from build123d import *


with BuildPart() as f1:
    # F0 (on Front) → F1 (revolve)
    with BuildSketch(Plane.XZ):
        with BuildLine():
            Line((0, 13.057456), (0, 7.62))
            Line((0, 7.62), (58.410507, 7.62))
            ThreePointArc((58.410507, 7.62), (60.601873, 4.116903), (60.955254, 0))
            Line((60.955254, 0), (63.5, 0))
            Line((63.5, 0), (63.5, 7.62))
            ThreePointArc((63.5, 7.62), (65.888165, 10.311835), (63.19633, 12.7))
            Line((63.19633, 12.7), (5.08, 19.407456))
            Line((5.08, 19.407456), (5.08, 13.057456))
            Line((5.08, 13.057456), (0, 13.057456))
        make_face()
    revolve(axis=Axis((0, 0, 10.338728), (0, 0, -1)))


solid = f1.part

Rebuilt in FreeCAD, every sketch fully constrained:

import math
import FreeCAD as App
import Part
import Sketcher
from FreeCAD import Vector
Q = App.Units.Quantity

doc = App.newDocument("Part")
body = doc.addObject("PartDesign::Body", "Body")

# Sketch on XZ plane
sketch1 = body.newObject("Sketcher::SketchObject", "Sketch")
sketch1.AttachmentSupport = (doc.getObject("XZ_Plane"), [""])
sketch1.MapMode = "FlatFace"
sketch1.addGeometry(Part.LineSegment(Vector(0, 13.1, 0), Vector(0, 7.6, 0)), False)
sketch1.addGeometry(Part.LineSegment(Vector(0, 7.6, 0), Vector(58.4, 7.6, 0)), False)
sketch1.addGeometry(Part.ArcOfCircle(Part.Circle(Vector(52.2, 1.3, 0), Vector(0, 0, 1), 8.8), math.radians(-9), math.radians(46)), False)
sketch1.addGeometry(Part.LineSegment(Vector(61, 0, 0), Vector(63.5, 0, 0)), False)
sketch1.addGeometry(Part.LineSegment(Vector(63.5, 0, 0), Vector(63.5, 7.6, 0)), False)
sketch1.addGeometry(Part.ArcOfCircle(Part.Circle(Vector(63.3, 10.2, 0), Vector(0, 0, 1), 2.5), math.radians(-87), math.radians(93)), False)
sketch1.addGeometry(Part.LineSegment(Vector(63.2, 12.7, 0), Vector(5.1, 19.4, 0)), False)
sketch1.addGeometry(Part.LineSegment(Vector(5.1, 19.4, 0), Vector(5.1, 13.1, 0)), False)
sketch1.addGeometry(Part.LineSegment(Vector(5.1, 13.1, 0), Vector(0, 13.1, 0)), False)
sketch1.addConstraint(Sketcher.Constraint("Coincident", 0, 2, 1, 1))
sketch1.addConstraint(Sketcher.Constraint("Coincident", 1, 2, 2, 2))
sketch1.addConstraint(Sketcher.Constraint("Coincident", 2, 1, 3, 1))
sketch1.addConstraint(Sketcher.Constraint("Coincident", 3, 2, 4, 1))
sketch1.addConstraint(Sketcher.Constraint("Coincident", 4, 2, 5, 1))
sketch1.addConstraint(Sketcher.Constraint("Coincident", 5, 2, 6, 1))
sketch1.addConstraint(Sketcher.Constraint("Coincident", 6, 2, 7, 1))
sketch1.addConstraint(Sketcher.Constraint("Coincident", 7, 2, 8, 1))
sketch1.addConstraint(Sketcher.Constraint("Coincident", 8, 2, 0, 1))
sketch1.addConstraint(Sketcher.Constraint("Vertical", 0))
sketch1.addConstraint(Sketcher.Constraint("Horizontal", 1))
sketch1.addConstraint(Sketcher.Constraint("Horizontal", 3))
sketch1.addConstraint(Sketcher.Constraint("Vertical", 4))
sketch1.addConstraint(Sketcher.Constraint("Vertical", 7))
sketch1.addConstraint(Sketcher.Constraint("Horizontal", 8))
sketch1.addConstraint(Sketcher.Constraint("PointOnObject", 0, 2, -2))
sketch1.addConstraint(Sketcher.Constraint("PointOnObject", 2, 1, -1))
sketch1.addConstraint(Sketcher.Constraint("Horizontal", 1, 2, 4, 2))
sketch1.addConstraint(Sketcher.Constraint("DistanceX", 8, 2, 8, 1, Q("0.2 in")))
sketch1.addConstraint(Sketcher.Constraint("DistanceY", 4, 1, 4, 2, Q("0.3 in")))
sketch1.addConstraint(Sketcher.Constraint("DistanceY", 7, 2, 7, 1, Q("0.25 in")))
sketch1.addConstraint(Sketcher.Constraint("DistanceY", -1, 1, 5, 3, Q("0.4 in")))
sketch1.addConstraint(Sketcher.Constraint("DistanceX", -1, 1, 3, 2, Q("2.5 in")))
sketch1.addConstraint(Sketcher.Constraint("DistanceY", -1, 1, 5, 2, Q("0.5 in")))
sketch1.addConstraint(Sketcher.Constraint("Radius", 2, Q("8.811048 mm")))
sketch1.addConstraint(Sketcher.Constraint("Radius", 5, Q("2.544534 mm")))
sketch1.addConstraint(Sketcher.Constraint("DistanceX", 1, 1, 1, 2, Q("58.410507 mm")))
sketch1.addConstraint(Sketcher.Constraint("DistanceX", 3, 1, 3, 2, Q("2.544746 mm")))
sketch1.addConstraint(Sketcher.Constraint("DistanceY", 0, 2, 0, 1, Q("5.437456 mm")))
revolution = body.newObject("PartDesign::Revolution", "Revolution")
revolution.Profile = sketch1
revolution.ReferenceAxis = (sketch1, ["V_Axis"])
revolution.Angle = 360

doc.recompute()
